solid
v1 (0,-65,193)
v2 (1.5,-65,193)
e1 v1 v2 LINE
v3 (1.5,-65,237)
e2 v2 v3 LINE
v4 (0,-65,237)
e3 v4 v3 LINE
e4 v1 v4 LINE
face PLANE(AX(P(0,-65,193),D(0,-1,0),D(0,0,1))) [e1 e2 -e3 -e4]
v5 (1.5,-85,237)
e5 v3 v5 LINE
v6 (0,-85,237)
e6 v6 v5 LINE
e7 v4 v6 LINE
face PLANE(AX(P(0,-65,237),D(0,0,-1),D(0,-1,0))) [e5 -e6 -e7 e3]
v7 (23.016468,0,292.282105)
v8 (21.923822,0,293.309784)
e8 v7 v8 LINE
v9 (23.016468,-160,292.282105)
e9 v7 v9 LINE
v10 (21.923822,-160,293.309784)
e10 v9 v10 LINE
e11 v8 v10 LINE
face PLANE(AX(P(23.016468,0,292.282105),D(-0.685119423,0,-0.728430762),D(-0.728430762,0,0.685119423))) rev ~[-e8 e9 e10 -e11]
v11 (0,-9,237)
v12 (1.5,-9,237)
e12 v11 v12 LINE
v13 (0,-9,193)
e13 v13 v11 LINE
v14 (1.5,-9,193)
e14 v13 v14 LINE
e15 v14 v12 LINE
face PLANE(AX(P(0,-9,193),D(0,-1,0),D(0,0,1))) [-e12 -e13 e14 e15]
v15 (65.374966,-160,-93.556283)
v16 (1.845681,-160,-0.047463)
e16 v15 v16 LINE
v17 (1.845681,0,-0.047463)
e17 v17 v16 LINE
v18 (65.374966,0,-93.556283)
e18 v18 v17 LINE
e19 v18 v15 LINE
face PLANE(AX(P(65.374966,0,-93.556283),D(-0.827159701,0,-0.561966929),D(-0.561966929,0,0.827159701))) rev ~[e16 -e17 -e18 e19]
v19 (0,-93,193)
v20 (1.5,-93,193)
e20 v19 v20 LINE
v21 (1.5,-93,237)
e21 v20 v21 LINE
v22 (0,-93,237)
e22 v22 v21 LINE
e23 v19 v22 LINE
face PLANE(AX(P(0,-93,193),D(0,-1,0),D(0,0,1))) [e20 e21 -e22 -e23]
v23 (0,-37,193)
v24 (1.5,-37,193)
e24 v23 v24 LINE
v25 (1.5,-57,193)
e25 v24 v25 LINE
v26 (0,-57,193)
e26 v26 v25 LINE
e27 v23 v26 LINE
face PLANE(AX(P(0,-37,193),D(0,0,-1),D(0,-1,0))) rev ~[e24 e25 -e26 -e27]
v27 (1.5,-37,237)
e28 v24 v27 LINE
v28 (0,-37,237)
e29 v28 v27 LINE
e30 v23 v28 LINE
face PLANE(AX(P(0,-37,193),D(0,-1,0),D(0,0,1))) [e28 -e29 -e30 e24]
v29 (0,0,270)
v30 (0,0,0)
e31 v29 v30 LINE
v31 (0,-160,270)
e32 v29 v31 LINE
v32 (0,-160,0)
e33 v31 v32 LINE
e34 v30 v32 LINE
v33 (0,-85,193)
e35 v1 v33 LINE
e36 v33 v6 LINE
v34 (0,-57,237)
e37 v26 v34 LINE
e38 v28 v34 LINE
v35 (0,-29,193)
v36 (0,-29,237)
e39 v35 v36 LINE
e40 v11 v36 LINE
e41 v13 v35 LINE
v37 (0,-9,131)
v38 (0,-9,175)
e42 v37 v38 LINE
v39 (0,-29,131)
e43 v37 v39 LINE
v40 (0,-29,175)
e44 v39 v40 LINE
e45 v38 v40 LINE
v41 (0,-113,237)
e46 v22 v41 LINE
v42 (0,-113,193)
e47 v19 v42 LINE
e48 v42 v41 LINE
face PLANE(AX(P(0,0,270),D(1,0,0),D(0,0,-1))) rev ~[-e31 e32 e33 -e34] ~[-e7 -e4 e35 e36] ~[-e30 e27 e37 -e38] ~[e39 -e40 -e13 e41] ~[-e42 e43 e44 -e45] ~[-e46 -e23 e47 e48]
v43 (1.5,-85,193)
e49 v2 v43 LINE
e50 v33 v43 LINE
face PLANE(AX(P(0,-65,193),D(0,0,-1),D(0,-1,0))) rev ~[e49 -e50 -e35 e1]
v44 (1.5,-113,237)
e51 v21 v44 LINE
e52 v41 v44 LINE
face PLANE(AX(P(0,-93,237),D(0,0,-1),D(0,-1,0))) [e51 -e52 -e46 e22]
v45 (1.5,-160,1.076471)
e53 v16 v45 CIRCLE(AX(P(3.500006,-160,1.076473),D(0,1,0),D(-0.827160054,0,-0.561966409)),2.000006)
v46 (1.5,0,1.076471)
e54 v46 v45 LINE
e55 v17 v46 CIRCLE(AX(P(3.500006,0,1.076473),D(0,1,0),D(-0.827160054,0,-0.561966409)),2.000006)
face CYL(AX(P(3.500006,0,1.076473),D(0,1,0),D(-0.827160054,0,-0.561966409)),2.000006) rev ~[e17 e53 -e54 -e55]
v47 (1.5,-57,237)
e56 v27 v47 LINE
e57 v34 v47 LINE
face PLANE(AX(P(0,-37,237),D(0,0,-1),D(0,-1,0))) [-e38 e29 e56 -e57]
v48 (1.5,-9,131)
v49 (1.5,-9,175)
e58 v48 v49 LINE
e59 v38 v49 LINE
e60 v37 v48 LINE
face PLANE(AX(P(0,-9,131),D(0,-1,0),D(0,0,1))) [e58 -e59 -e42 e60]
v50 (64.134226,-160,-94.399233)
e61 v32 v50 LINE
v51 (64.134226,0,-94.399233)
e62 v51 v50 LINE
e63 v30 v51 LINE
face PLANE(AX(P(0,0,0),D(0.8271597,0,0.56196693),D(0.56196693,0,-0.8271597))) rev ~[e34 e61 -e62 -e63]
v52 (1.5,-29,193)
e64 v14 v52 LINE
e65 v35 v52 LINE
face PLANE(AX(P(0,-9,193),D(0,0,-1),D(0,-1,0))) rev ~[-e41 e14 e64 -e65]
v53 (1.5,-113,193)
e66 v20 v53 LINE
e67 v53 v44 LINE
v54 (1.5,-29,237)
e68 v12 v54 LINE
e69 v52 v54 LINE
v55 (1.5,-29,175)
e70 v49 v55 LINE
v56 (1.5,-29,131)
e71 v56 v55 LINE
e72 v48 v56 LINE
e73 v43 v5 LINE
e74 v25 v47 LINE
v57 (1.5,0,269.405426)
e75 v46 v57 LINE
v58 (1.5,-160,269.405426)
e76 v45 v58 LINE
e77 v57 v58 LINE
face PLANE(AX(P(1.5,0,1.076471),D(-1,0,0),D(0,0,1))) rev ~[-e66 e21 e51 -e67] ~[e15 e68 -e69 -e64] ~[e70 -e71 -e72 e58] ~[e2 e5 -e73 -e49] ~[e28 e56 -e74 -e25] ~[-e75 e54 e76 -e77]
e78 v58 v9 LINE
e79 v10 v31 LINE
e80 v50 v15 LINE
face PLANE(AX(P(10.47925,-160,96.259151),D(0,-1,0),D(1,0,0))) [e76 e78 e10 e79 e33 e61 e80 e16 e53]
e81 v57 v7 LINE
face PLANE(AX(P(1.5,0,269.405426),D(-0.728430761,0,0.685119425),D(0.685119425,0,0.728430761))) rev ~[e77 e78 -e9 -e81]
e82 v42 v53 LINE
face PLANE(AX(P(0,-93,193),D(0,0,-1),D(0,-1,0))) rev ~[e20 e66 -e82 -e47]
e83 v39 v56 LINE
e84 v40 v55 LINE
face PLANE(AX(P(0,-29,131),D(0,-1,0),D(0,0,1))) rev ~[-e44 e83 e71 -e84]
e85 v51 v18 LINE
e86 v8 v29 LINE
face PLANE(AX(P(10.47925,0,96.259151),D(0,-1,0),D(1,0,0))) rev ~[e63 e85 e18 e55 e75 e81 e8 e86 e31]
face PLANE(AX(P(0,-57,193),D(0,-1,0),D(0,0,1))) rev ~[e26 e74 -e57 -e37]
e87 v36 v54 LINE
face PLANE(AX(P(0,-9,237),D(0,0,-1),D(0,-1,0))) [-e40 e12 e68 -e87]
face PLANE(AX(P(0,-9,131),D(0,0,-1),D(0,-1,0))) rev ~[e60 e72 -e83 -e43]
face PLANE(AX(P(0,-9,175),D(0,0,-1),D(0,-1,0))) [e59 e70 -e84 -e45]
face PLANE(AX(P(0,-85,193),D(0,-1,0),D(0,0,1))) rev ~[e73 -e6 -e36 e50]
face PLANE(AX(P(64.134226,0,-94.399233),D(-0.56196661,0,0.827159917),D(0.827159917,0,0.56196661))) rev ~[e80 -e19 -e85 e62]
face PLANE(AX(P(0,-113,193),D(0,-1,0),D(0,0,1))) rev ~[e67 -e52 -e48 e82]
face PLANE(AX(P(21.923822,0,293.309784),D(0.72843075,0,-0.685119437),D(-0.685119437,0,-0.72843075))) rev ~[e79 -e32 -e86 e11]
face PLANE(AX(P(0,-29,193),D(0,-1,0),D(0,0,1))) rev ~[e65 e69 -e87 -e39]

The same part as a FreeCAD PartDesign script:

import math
import FreeCAD as App
import Part
import Sketcher
Q = App.Units.Quantity

doc = App.newDocument("Part")
body = doc.addObject("PartDesign::Body", "Body")

sketch1 = body.newObject("Sketcher::SketchObject", "Sketch")
sketch1.AttachmentSupport = (doc.getObject("XZ_Plane"), [""])
sketch1.MapMode = "FlatFace"
sketch1.addGeometry([
    Part.LineSegment(App.Vector(0, 270, 0), App.Vector(0, 0, 0)),
    Part.LineSegment(App.Vector(0, 0, 0), App.Vector(64.134226, -94.399233, 0)),
    Part.LineSegment(App.Vector(64.134226, -94.399233, 0), App.Vector(65.374966, -93.556283, 0)),
    Part.LineSegment(App.Vector(65.374966, -93.556283, 0), App.Vector(1.845681, -0.047463, 0)),
    Part.ArcOfCircle(Part.Circle(App.Vector(3.500006, 1.076473, 0), App.Vector(0, 0, 1), 2.000006), math.radians(-179.999931), math.radians(-145.808103)),
    Part.LineSegment(App.Vector(1.5, 1.076471, 0), App.Vector(1.5, 269.405426, 0)),
    Part.LineSegment(App.Vector(1.5, 269.405426, 0), App.Vector(23.016468, 292.282105, 0)),
    Part.LineSegment(App.Vector(23.016468, 292.282105, 0), App.Vector(21.923822, 293.309784, 0)),
    Part.LineSegment(App.Vector(21.923822, 293.309784, 0), App.Vector(0, 270, 0)),
], False)
sketch1.addConstraint([
    Sketcher.Constraint("Coincident", 0, 2, 1, 1),
    Sketcher.Constraint("Coincident", 1, 2, 2, 1),
    Sketcher.Constraint("Coincident", 2, 2, 3, 1),
    Sketcher.Constraint("Coincident", 3, 2, 4, 2),
    Sketcher.Constraint("Coincident", 4, 1, 5, 1),
    Sketcher.Constraint("Coincident", 5, 2, 6, 1),
    Sketcher.Constraint("Coincident", 6, 2, 7, 1),
    Sketcher.Constraint("Coincident", 7, 2, 8, 1),
    Sketcher.Constraint("Coincident", 8, 2, 0, 1),
    Sketcher.Constraint("Vertical", 0),
    Sketcher.Constraint("Vertical", 5),
    Sketcher.Constraint("Coincident", 0, 2, -1, 1),
    Sketcher.Constraint("DistanceY", 0, 2, 0, 1, Q("270 mm")),
    Sketcher.Constraint("Distance", 8, Q("32 mm")),
    Sketcher.Constraint("Distance", 2, Q("1.5 mm")),
    Sketcher.Constraint("Distance", 7, Q("1.5 mm")),
    Sketcher.Constraint("DistanceX", -1, 1, 4, 1, Q("1.5 mm")),
    Sketcher.Constraint("Radius", 4, Q("2.000006 mm")),
    Sketcher.Constraint("DistanceY", 5, 1, 5, 2, Q("268.328955 mm")),
    Sketcher.Constraint("DistanceX", -1, 1, 3, 2, Q("1.845681 mm")),
    Sketcher.Constraint("DistanceY", -1, 1, 4, 1, Q("1.076471 mm")),
    Sketcher.Constraint("DistanceX", 4, 3, 1, 2, Q("60.63422 mm")),
    Sketcher.Constraint("DistanceX", 1, 2, 2, 2, Q("1.24074 mm")),
    Sketcher.Constraint("DistanceY", 2, 2, 3, 2, Q("93.50882 mm")),
    Sketcher.Constraint("DistanceY", 3, 2, 5, 2, Q("269.452889 mm")),
    Sketcher.Constraint("DistanceY", 5, 2, 6, 2, Q("22.876679 mm")),
    Sketcher.Constraint("DistanceX", 4, 3, 6, 2, Q("19.516462 mm")),
])
pad1 = body.newObject("PartDesign::Pad", "Pad")
pad1.Profile = sketch1
pad1.Length = 160

sketch2 = body.newObject("Sketcher::SketchObject", "Sketch001")
sketch2.AttachmentSupport = (doc.getObject("YZ_Plane"), [""])
sketch2.MapMode = "FlatFace"
sketch2.addGeometry([
    Part.LineSegment(App.Vector(-9, 237, 0), App.Vector(-9, 193, 0)),
    Part.LineSegment(App.Vector(-9, 193, 0), App.Vector(-29, 193, 0)),
    Part.LineSegment(App.Vector(-29, 193, 0), App.Vector(-29, 237, 0)),
    Part.LineSegment(App.Vector(-29, 237, 0), App.Vector(-9, 237, 0)),
    Part.LineSegment(App.Vector(-37, 237, 0), App.Vector(-37, 193, 0)),
    Part.LineSegment(App.Vector(-37, 193, 0), App.Vector(-57, 193, 0)),
    Part.LineSegment(App.Vector(-57, 193, 0), App.Vector(-57, 237, 0)),
    Part.LineSegment(App.Vector(-57, 237, 0), App.Vector(-37, 237, 0)),
    Part.LineSegment(App.Vector(-65, 237, 0), App.Vector(-65, 193, 0)),
    Part.LineSegment(App.Vector(-65, 193, 0), App.Vector(-85, 193, 0)),
    Part.LineSegment(App.Vector(-85, 193, 0), App.Vector(-85, 237, 0)),
    Part.LineSegment(App.Vector(-85, 237, 0), App.Vector(-65, 237, 0)),
    Part.LineSegment(App.Vector(-93, 237, 0), App.Vector(-93, 193, 0)),
    Part.LineSegment(App.Vector(-93, 193, 0), App.Vector(-113, 193, 0)),
    Part.LineSegment(App.Vector(-113, 193, 0), App.Vector(-113, 237, 0)),
    Part.LineSegment(App.Vector(-113, 237, 0), App.Vector(-93, 237, 0)),
    Part.LineSegment(App.Vector(-9, 175, 0), App.Vector(-9, 131, 0)),
    Part.LineSegment(App.Vector(-9, 131, 0), App.Vector(-29, 131, 0)),
    Part.LineSegment(App.Vector(-29, 131, 0), App.Vector(-29, 175, 0)),
    Part.LineSegment(App.Vector(-29, 175, 0), App.Vector(-9, 175, 0)),
], False)
sketch2.addConstraint([
    Sketcher.Constraint("Coincident", 0, 2, 1, 1),
    Sketcher.Constraint("Coincident", 1, 2, 2, 1),
    Sketcher.Constraint("Coincident", 2, 2, 3, 1),
    Sketcher.Constraint("Coincident", 3, 2, 0, 1),
    Sketcher.Constraint("Coincident", 4, 2, 5, 1),
    Sketcher.Constraint("Coincident", 5, 2, 6, 1),
    Sketcher.Constraint("Coincident", 6, 2, 7, 1),
    Sketcher.Constraint("Coincident", 7, 2, 4, 1),
    Sketcher.Constraint("Coincident", 8, 2, 9, 1),
    Sketcher.Constraint("Coincident", 9, 2, 10, 1),
    Sketcher.Constraint("Coincident", 10, 2, 11, 1),
    Sketcher.Constraint("Coincident", 11, 2, 8, 1),
    Sketcher.Constraint("Coincident", 12, 2, 13, 1),
    Sketcher.Constraint("Coincident", 13, 2, 14, 1),
    Sketcher.Constraint("Coincident", 14, 2, 15, 1),
    Sketcher.Constraint("Coincident", 15, 2, 12, 1),
    Sketcher.Constraint("Coincident", 16, 2, 17, 1),
    Sketcher.Constraint("Coincident", 17, 2, 18, 1),
    Sketcher.Constraint("Coincident", 18, 2, 19, 1),
    Sketcher.Constraint("Coincident", 19, 2, 16, 1),
    Sketcher.Constraint("Vertical", 0),
    Sketcher.Constraint("Horizontal", 1),
    Sketcher.Constraint("Vertical", 2),
    Sketcher.Constraint("Horizontal", 3),
    Sketcher.Constraint("Vertical", 4),
    Sketcher.Constraint("Horizontal", 5),
    Sketcher.Constraint("Vertical", 6),
    Sketcher.Constraint("Horizontal", 7),
    Sketcher.Constraint("Vertical", 8),
    Sketcher.Constraint("Horizontal", 9),
    Sketcher.Constraint("Vertical", 10),
    Sketcher.Constraint("Horizontal", 11),
    Sketcher.Constraint("Vertical", 12),
    Sketcher.Constraint("Horizontal", 13),
    Sketcher.Constraint("Vertical", 14),
    Sketcher.Constraint("Horizontal", 15),
    Sketcher.Constraint("Vertical", 16),
    Sketcher.Constraint("Horizontal", 17),
    Sketcher.Constraint("Vertical", 18),
    Sketcher.Constraint("Horizontal", 19),
    Sketcher.Constraint("Horizontal", 1, 2, 4, 2),
    Sketcher.Constraint("Horizontal", 3, 2, 6, 2),
    Sketcher.Constraint("Horizontal", 5, 2, 8, 2),
    Sketcher.Constraint("Horizontal", 7, 2, 10, 2),
    Sketcher.Constraint("Horizontal", 9, 2, 12, 2),
    Sketcher.Constraint("Horizontal", 11, 2, 14, 2),
    Sketcher.Constraint("Vertical", 3, 2, 16, 2),
    Sketcher.Constraint("Vertical", 2, 2, 17, 2),
    Sketcher.Constraint("Equal", 3, 5),
    Sketcher.Constraint("Equal", 7, 9),
    Sketcher.Constraint("Equal", 11, 13),
    Sketcher.Constraint("Equal", 14, 16),
    Sketcher.Constraint("DistanceX", 1, 2, 1, 1, Q("20 mm")),
    Sketcher.Constraint("DistanceY", 0, 2, 0, 1, Q("44 mm")),
    Sketcher.Constraint("DistanceX", 0, 2, -1, 1, Q("9 mm")),
    Sketcher.Constraint("DistanceY", -1, 1, 0, 2, Q("193 mm")),
    Sketcher.Constraint("DistanceX", 4, 2, -1, 1, Q("37 mm")),
    Sketcher.Constraint("DistanceX", 8, 2, -1, 1, Q("65 mm")),
    Sketcher.Constraint("DistanceX", 12, 2, -1, 1, Q("93 mm")),
    Sketcher.Constraint("DistanceY", -1, 1, 16, 2, Q("131 mm")),
])
pocket1 = body.newObject("PartDesign::Pocket", "Pocket")
pocket1.Profile = sketch2
pocket1.Type = "ThroughAll"
pocket1.Reversed = True

doc.recompute()
